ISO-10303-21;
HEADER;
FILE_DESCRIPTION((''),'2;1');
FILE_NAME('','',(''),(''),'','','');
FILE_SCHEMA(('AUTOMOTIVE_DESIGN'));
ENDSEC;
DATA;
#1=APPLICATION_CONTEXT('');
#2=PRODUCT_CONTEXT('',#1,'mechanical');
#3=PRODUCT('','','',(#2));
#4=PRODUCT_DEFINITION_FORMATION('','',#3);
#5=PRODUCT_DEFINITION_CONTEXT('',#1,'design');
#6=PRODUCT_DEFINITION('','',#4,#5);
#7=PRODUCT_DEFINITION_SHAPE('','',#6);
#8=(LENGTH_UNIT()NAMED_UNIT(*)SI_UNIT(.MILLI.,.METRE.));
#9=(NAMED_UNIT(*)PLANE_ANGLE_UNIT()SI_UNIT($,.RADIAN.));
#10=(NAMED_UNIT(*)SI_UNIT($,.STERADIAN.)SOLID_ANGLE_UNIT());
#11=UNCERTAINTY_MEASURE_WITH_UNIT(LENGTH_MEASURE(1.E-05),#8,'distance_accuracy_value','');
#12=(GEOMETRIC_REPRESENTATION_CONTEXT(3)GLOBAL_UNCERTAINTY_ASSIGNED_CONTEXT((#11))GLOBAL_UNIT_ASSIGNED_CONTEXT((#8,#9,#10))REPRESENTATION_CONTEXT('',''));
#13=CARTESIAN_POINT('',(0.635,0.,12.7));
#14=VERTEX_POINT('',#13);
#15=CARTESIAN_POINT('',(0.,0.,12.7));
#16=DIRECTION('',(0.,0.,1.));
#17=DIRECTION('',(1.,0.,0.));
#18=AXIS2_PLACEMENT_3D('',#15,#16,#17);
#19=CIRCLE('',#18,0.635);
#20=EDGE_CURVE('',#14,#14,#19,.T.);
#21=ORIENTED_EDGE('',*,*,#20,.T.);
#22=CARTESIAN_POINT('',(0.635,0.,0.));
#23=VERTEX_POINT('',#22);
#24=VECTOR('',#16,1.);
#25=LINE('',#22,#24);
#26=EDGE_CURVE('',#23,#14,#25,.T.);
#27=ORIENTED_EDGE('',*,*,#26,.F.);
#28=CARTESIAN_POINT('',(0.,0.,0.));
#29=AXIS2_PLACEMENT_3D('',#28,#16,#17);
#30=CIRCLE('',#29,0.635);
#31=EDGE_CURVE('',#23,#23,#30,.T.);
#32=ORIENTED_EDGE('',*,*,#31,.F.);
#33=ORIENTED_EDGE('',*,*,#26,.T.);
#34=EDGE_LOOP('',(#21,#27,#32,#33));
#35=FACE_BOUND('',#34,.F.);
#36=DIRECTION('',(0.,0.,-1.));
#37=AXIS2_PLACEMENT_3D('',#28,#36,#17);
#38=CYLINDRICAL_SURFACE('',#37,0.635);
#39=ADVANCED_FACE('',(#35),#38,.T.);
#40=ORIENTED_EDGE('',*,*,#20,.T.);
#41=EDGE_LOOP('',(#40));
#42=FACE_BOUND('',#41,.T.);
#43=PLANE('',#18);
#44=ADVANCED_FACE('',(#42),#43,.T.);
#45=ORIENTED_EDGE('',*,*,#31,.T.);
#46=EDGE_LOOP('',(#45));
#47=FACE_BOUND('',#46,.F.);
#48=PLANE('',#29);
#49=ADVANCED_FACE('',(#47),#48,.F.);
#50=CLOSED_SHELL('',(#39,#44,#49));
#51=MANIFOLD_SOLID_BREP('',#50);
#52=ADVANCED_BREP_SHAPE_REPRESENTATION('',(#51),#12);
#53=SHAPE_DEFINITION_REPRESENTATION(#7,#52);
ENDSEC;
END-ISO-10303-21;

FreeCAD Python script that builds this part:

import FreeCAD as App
import Part
import Sketcher

V = App.Vector
Q = App.Units.Quantity

doc = App.newDocument("Part")
body = doc.addObject("PartDesign::Body", "Body")

sketch1 = body.newObject("Sketcher::SketchObject", "Sketch")
sketch1.AttachmentSupport = (doc.getObject("XY_Plane"), [""])
sketch1.MapMode = "FlatFace"
sketch1.addGeometry(Part.Circle(V(0, 0, 0), V(0, 0, 1), 0.6), False)
sketch1.addConstraint([
    Sketcher.Constraint("Coincident", 0, 3, -1, 1),
    Sketcher.Constraint("Diameter", 0, Q("0.05 in")),
])
pad1 = body.newObject("PartDesign::Pad", "Pad")
pad1.Profile = sketch1
pad1.Length = Q("0.5 in")

doc.recompute()
